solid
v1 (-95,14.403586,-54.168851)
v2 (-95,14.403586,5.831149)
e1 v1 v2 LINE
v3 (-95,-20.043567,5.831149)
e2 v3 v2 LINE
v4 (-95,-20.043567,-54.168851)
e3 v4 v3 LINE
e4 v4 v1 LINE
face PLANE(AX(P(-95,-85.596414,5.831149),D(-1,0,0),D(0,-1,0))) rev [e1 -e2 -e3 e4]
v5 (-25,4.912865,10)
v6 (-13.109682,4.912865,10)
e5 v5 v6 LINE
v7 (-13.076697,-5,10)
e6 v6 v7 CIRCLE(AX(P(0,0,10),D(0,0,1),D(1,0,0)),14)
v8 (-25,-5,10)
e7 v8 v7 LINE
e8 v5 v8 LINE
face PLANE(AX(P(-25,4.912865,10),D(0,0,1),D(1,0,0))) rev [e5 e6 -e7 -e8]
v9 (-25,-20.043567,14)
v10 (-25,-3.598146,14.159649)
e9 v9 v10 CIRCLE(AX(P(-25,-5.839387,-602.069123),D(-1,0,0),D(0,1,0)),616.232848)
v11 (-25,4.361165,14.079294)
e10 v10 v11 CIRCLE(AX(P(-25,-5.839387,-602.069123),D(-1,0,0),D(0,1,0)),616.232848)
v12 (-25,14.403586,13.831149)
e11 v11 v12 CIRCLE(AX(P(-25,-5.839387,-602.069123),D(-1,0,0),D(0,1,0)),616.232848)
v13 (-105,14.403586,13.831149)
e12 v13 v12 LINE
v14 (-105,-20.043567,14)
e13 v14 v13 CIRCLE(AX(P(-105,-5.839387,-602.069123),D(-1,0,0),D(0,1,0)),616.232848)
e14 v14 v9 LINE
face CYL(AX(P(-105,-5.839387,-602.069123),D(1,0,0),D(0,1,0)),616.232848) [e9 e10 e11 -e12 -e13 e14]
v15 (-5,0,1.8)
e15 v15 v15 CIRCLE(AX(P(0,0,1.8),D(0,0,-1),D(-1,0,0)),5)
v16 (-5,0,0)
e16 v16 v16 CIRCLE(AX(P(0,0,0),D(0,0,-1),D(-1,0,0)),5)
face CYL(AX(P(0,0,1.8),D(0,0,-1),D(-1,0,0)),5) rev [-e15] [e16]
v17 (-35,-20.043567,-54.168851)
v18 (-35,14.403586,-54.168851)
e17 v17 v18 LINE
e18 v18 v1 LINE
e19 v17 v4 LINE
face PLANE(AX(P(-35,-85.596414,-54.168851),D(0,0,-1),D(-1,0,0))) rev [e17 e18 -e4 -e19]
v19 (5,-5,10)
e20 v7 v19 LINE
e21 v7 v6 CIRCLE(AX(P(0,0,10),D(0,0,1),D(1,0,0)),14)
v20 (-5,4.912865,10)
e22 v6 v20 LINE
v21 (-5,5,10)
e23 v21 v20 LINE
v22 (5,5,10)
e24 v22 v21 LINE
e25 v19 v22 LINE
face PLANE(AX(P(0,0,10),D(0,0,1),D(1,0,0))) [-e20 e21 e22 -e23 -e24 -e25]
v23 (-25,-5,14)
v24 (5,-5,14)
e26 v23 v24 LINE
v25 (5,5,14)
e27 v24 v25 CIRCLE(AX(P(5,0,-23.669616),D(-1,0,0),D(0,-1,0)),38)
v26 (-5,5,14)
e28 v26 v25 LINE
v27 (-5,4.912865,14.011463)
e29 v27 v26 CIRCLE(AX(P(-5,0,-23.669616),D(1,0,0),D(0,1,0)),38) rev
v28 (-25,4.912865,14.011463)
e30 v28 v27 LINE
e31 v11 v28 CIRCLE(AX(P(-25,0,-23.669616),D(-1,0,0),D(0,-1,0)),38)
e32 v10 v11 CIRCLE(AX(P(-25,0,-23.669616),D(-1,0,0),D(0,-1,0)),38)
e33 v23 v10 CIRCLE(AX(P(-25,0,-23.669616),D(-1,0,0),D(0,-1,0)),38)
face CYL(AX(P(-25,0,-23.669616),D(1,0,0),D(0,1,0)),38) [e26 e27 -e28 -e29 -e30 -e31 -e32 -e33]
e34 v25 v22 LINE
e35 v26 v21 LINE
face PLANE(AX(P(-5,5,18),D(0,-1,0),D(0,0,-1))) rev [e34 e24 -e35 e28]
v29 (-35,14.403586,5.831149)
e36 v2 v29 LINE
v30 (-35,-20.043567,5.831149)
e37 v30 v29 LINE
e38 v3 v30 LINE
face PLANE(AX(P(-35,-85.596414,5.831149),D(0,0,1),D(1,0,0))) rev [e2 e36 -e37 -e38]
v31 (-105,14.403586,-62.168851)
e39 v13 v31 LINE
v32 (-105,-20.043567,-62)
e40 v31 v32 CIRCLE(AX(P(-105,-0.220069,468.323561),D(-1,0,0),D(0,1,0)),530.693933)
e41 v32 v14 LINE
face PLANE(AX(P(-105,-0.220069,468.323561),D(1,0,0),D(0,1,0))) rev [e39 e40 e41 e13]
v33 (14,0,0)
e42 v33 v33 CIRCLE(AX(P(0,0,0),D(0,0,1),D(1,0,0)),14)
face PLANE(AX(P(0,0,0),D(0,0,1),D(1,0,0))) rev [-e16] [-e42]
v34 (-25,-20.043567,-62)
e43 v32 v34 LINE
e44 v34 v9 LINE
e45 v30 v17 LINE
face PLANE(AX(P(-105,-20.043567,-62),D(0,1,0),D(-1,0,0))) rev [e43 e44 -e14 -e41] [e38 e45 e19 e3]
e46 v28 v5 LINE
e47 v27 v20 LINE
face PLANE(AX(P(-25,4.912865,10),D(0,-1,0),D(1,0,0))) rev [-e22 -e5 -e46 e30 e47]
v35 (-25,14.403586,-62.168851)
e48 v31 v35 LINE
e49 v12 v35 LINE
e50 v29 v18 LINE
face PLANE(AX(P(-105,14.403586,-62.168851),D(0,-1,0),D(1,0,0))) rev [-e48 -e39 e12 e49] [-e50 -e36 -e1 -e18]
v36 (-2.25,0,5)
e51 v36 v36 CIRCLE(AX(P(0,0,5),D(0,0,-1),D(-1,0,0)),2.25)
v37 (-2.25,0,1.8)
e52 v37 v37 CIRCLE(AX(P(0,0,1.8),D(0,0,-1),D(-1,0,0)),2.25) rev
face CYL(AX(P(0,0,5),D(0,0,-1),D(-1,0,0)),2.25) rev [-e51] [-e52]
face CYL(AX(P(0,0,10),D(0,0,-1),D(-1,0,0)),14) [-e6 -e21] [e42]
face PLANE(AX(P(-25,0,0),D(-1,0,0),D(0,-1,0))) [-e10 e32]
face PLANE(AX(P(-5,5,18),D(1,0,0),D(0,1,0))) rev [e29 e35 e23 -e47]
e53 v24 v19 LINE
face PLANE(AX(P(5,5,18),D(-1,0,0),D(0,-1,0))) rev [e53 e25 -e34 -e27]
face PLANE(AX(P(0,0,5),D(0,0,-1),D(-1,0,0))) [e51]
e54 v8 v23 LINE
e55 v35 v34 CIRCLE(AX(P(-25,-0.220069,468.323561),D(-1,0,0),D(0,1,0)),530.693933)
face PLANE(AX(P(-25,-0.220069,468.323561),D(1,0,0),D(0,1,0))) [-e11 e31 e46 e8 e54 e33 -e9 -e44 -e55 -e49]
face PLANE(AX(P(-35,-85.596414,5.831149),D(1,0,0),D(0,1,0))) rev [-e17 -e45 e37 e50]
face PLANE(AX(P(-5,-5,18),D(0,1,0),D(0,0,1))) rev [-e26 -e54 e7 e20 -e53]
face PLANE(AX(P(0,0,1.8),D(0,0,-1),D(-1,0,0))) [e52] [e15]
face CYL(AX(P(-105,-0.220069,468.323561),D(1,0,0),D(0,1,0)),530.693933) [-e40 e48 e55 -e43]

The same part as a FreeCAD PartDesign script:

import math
import FreeCAD as App
import Part
import Sketcher
from FreeCAD import Vector


def add_polygon(sketch, points):
    """Adds a closed chain of lines whose ends are joined by coincident constraints."""
    first, n = sketch.GeometryCount, len(points)
    for a, b in zip(points, points[1:] + points[:1]):
        sketch.addGeometry(Part.LineSegment(App.Vector(*a, 0), App.Vector(*b, 0)), False)
    for i in range(n):
        sketch.addConstraint(Sketcher.Constraint("Coincident", first + i, 2, first + (i + 1) % n, 1))

doc = App.newDocument("Part")
body = doc.addObject("PartDesign::Body", "Body")

sketch1 = body.newObject("Sketcher::SketchObject", "Sketch")
sketch1.AttachmentSupport = (doc.getObject("XY_Plane"), [""])
sketch1.MapMode = "FlatFace"
sketch1.addGeometry(Part.Circle(Vector(0, 0, 0), Vector(0, 0, 1), 14), False)
sketch1.addConstraint([
    Sketcher.Constraint("Coincident", 0, 3, -1, 1),
    Sketcher.Constraint("Diameter", 0, 28.0),
])
pad1 = body.newObject("PartDesign::Pad", "Pad")
pad1.Profile = sketch1
pad1.Length = 10

sketch2 = body.newObject("Sketcher::SketchObject", "Sketch001")
sketch2.AttachmentSupport = (doc.getObject("XY_Plane"), [""])
sketch2.MapMode = "FlatFace"
sketch2.addGeometry(Part.Circle(Vector(0, 0, 0), Vector(0, 0, 1), 2.2), False)
sketch2.addConstraint([
    Sketcher.Constraint("Coincident", 0, 3, -1, 1),
    Sketcher.Constraint("Diameter", 0, 4.5),
])
pocket1 = body.newObject("PartDesign::Pocket", "Pocket")
pocket1.Profile = sketch2
pocket1.Length = 5
pocket1.Reversed = True

sketch3 = body.newObject("Sketcher::SketchObject", "Sketch002")
sketch3.AttachmentSupport = (doc.getObject("XY_Plane"), [""])
sketch3.MapMode = "FlatFace"
sketch3.addGeometry(Part.Circle(Vector(0, 0, 0), Vector(0, 0, 1), 5), False)
sketch3.addConstraint([
    Sketcher.Constraint("Coincident", 0, 3, -1, 1),
    Sketcher.Constraint("Diameter", 0, 10.0),
])
pocket2 = body.newObject("PartDesign::Pocket", "Pocket001")
pocket2.Profile = sketch3
pocket2.Length = 1.8
pocket2.Reversed = True

sketch4 = body.newObject("Sketcher::SketchObject", "Sketch003")
sketch4.AttachmentSupport = (doc.getObject("XY_Plane"), [""])
sketch4.MapMode = "FlatFace"
sketch4.AttachmentOffset = App.Placement(Vector(0, 0, 10), App.Rotation())
add_polygon(sketch4, [(-5, 5), (-5, -5), (5, -5), (5, 5)])
sketch4.addConstraint([
    Sketcher.Constraint("Vertical", 0),
    Sketcher.Constraint("Horizontal", 1),
    Sketcher.Constraint("Vertical", 2),
    Sketcher.Constraint("Horizontal", 3),
    Sketcher.Constraint("Symmetric", 0, 2, 2, 2, -1, 1),
    Sketcher.Constraint("Equal", 3, 0),
    Sketcher.Constraint("DistanceX", 1, 1, 1, 2, 10.0),
])
pad2 = body.newObject("PartDesign::Pad", "Pad001")
pad2.Profile = sketch4
pad2.Length = 8

sketch5 = body.newObject("Sketcher::SketchObject", "Sketch004")
sketch5.AttachmentSupport = (doc.getObject("YZ_Plane"), [""])
sketch5.MapMode = "FlatFace"
sketch5.AttachmentOffset = App.Placement(Vector(0, 0, -5), App.Rotation())
add_polygon(sketch5, [(5, 10), (-5, 10), (-5, 18), (5, 18)])
sketch5.addConstraint([
    Sketcher.Constraint("Horizontal", 0),
    Sketcher.Constraint("Vertical", 1),
    Sketcher.Constraint("Horizontal", 2),
    Sketcher.Constraint("Vertical", 3),
    Sketcher.Constraint("DistanceY", 1, 1, 1, 2, 8.0),
    Sketcher.Constraint("DistanceX", 0, 2, -1, 1, 5.0),
    Sketcher.Constraint("DistanceY", -1, 1, 0, 2, 10.0),
    Sketcher.Constraint("DistanceX", 0, 2, 0, 1, 9.912865),
])
pad3 = body.newObject("PartDesign::Pad", "Pad002")
pad3.Profile = sketch5
pad3.Length = 20
pad3.Reversed = True

sketch6 = body.newObject("Sketcher::SketchObject", "Sketch005")
sketch6.AttachmentSupport = (doc.getObject("YZ_Plane"), [""])
sketch6.MapMode = "FlatFace"
sketch6.AttachmentOffset = App.Placement(Vector(0, 0, 5), App.Rotation())
sketch6.addGeometry([
    Part.LineSegment(Vector(5, 18, 0), Vector(-5, 18, 0)),
    Part.LineSegment(Vector(-5, 18, 0), Vector(-5, 14, 0)),
    Part.ArcOfCircle(Part.Circle(Vector(0, -23.7, 0), Vector(0, 0, 1), 38), math.radians(82.44), math.radians(97.56)),
    Part.LineSegment(Vector(5, 14, 0), Vector(5, 18, 0)),
], False)
sketch6.addConstraint([
    Sketcher.Constraint("Coincident", 0, 2, 1, 1),
    Sketcher.Constraint("Coincident", 1, 2, 2, 2),
    Sketcher.Constraint("Coincident", 2, 1, 3, 1),
    Sketcher.Constraint("Coincident", 3, 2, 0, 1),
    Sketcher.Constraint("Horizontal", 0),
    Sketcher.Constraint("Vertical", 1),
    Sketcher.Constraint("Vertical", 3),
    Sketcher.Constraint("Symmetric", 1, 2, 2, 1, -2),
    Sketcher.Constraint("Radius", 2, 38.0),
    Sketcher.Constraint("DistanceX", 0, 2, 0, 1, 10.0),
    Sketcher.Constraint("DistanceY", 1, 2, 1, 1, 4.0),
    Sketcher.Constraint("DistanceY", -1, 1, 0, 2, 18.0),
])
pocket3 = body.newObject("PartDesign::Pocket", "Pocket002")
pocket3.Profile = sketch6
pocket3.Length = 30

sketch7 = body.newObject("Sketcher::SketchObject", "Sketch006")
sketch7.AttachmentSupport = (doc.getObject("YZ_Plane"), [""])
sketch7.MapMode = "FlatFace"
sketch7.AttachmentOffset = App.Placement(Vector(0, 0, -25), App.Rotation())
sketch7.addGeometry([
    Part.LineSegment(Vector(14, 14, 0), Vector(14, -62, 0)),
    Part.ArcOfCircle(Part.Circle(Vector(0, 468, 0), Vector(0, 0, 1), 531), math.radians(-92.14), math.radians(-88.42)),
    Part.LineSegment(Vector(-20, -62, 0), Vector(-20, 14, 0)),
    Part.ArcOfCircle(Part.Circle(Vector(-6, -602, 0), Vector(0, 0, 1), 616), math.radians(88.12), math.radians(91.32)),
], False)
sketch7.addConstraint([
    Sketcher.Constraint("Coincident", 0, 2, 1, 2),
    Sketcher.Constraint("Coincident", 1, 1, 2, 1),
    Sketcher.Constraint("Coincident", 2, 2, 3, 2),
    Sketcher.Constraint("Coincident", 3, 1, 0, 1),
    Sketcher.Constraint("Vertical", 0),
    Sketcher.Constraint("Vertical", 2),
    Sketcher.Constraint("Equal", 0, 2),
    Sketcher.Constraint("DistanceY", 0, 2, 0, 1, 76.0),
    Sketcher.Constraint("DistanceY", 1, 1, -1, 1, 62.0),
    Sketcher.Constraint("Radius", 3, 616.232849),
    Sketcher.Constraint("Radius", 1, 530.693932),
    Sketcher.Constraint("DistanceX", 2, 2, 1, 3, 19.823499),
    Sketcher.Constraint("DistanceX", 1, 3, -1, 1, 0.220069),
    Sketcher.Constraint("DistanceY", 0, 2, -1, 1, 62.168851),
])
pad4 = body.newObject("PartDesign::Pad", "Pad003")
pad4.Profile = sketch7
pad4.Length = 80
pad4.Reversed = True

sketch8 = body.newObject("Sketcher::SketchObject", "Sketch007")
sketch8.AttachmentSupport = (doc.getObject("XZ_Plane"), [""])
sketch8.MapMode = "FlatFace"
sketch8.AttachmentOffset = App.Placement(Vector(0, 0, -14.403586), App.Rotation())
add_polygon(sketch8, [(-95, -54), (-95, 6), (-35, 6), (-35, -54)])
sketch8.addConstraint([
    Sketcher.Constraint("Vertical", 0),
    Sketcher.Constraint("Horizontal", 1),
    Sketcher.Constraint("Vertical", 2),
    Sketcher.Constraint("Horizontal", 3),
    Sketcher.Constraint("Equal", 3, 0),
    Sketcher.Constraint("DistanceX", 1, 1, 1, 2, 60.0),
    Sketcher.Constraint("DistanceX", 0, 2, -1, 1, 95.0),
    Sketcher.Constraint("DistanceY", -1, 1, 0, 2, 5.831149),
])
pocket4 = body.newObject("PartDesign::Pocket", "Pocket003")
pocket4.Profile = sketch8
pocket4.Length = 100
pocket4.Reversed = True

doc.recompute()
